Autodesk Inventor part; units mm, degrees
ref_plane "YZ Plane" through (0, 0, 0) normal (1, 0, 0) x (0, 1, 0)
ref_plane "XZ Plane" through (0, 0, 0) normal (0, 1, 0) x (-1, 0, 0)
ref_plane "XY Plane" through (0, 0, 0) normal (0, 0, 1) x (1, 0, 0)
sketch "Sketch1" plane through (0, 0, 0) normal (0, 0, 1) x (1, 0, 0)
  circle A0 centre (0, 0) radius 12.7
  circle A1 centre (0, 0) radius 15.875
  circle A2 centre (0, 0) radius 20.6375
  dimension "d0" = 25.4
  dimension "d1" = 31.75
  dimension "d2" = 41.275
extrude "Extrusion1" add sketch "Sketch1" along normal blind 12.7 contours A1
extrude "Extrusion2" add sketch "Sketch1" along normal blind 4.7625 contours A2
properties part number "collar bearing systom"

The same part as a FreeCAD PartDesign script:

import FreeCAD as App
import Part
import Sketcher
from FreeCAD import Vector
Q = App.Units.Quantity

doc = App.newDocument("Part")
body = doc.addObject("PartDesign::Body", "Body")

# Sketch on XY plane
sketch1 = doc.addObject("Sketcher::SketchObject", "Sketch")
body.addObject(sketch1)
sketch1.AttachmentSupport = (doc.XY_Plane, [""])
sketch1.MapMode = "FlatFace"
sketch1.addGeometry([
    Part.Circle(Vector(0, 0, 0), Vector(0, 0, 1), 16),
    Part.Circle(Vector(0, 0, 0), Vector(0, 0, 1), 13),
], False)
sketch1.addConstraint([
    Sketcher.Constraint("Coincident", 0, 3, -1, 1),
    Sketcher.Constraint("Coincident", 1, 3, -1, 1),
    Sketcher.Constraint("Diameter", 1, Q("1 in")),
    Sketcher.Constraint("Diameter", 0, Q("1.25 in")),
])
pad1 = doc.addObject("PartDesign::Pad", "Pad")
body.addObject(pad1)
pad1.Profile = sketch1
pad1.Length = Q("0.5 in")

# Sketch on XY plane
sketch2 = doc.addObject("Sketcher::SketchObject", "Sketch001")
body.addObject(sketch2)
sketch2.AttachmentSupport = (doc.XY_Plane, [""])
sketch2.MapMode = "FlatFace"
sketch2.addGeometry([
    Part.Circle(Vector(0, 0, 0), Vector(0, 0, 1), 21),
    Part.Circle(Vector(0, 0, 0), Vector(0, 0, 1), 16),
], False)
sketch2.addConstraint([
    Sketcher.Constraint("Coincident", 0, 3, -1, 1),
    Sketcher.Constraint("Coincident", 1, 3, -1, 1),
    Sketcher.Constraint("Diameter", 1, Q("1.25 in")),
    Sketcher.Constraint("Diameter", 0, Q("1.625 in")),
])
pad2 = doc.addObject("PartDesign::Pad", "Pad001")
body.addObject(pad2)
pad2.Profile = sketch2
pad2.Length = Q("0.1875 in")

doc.recompute()
